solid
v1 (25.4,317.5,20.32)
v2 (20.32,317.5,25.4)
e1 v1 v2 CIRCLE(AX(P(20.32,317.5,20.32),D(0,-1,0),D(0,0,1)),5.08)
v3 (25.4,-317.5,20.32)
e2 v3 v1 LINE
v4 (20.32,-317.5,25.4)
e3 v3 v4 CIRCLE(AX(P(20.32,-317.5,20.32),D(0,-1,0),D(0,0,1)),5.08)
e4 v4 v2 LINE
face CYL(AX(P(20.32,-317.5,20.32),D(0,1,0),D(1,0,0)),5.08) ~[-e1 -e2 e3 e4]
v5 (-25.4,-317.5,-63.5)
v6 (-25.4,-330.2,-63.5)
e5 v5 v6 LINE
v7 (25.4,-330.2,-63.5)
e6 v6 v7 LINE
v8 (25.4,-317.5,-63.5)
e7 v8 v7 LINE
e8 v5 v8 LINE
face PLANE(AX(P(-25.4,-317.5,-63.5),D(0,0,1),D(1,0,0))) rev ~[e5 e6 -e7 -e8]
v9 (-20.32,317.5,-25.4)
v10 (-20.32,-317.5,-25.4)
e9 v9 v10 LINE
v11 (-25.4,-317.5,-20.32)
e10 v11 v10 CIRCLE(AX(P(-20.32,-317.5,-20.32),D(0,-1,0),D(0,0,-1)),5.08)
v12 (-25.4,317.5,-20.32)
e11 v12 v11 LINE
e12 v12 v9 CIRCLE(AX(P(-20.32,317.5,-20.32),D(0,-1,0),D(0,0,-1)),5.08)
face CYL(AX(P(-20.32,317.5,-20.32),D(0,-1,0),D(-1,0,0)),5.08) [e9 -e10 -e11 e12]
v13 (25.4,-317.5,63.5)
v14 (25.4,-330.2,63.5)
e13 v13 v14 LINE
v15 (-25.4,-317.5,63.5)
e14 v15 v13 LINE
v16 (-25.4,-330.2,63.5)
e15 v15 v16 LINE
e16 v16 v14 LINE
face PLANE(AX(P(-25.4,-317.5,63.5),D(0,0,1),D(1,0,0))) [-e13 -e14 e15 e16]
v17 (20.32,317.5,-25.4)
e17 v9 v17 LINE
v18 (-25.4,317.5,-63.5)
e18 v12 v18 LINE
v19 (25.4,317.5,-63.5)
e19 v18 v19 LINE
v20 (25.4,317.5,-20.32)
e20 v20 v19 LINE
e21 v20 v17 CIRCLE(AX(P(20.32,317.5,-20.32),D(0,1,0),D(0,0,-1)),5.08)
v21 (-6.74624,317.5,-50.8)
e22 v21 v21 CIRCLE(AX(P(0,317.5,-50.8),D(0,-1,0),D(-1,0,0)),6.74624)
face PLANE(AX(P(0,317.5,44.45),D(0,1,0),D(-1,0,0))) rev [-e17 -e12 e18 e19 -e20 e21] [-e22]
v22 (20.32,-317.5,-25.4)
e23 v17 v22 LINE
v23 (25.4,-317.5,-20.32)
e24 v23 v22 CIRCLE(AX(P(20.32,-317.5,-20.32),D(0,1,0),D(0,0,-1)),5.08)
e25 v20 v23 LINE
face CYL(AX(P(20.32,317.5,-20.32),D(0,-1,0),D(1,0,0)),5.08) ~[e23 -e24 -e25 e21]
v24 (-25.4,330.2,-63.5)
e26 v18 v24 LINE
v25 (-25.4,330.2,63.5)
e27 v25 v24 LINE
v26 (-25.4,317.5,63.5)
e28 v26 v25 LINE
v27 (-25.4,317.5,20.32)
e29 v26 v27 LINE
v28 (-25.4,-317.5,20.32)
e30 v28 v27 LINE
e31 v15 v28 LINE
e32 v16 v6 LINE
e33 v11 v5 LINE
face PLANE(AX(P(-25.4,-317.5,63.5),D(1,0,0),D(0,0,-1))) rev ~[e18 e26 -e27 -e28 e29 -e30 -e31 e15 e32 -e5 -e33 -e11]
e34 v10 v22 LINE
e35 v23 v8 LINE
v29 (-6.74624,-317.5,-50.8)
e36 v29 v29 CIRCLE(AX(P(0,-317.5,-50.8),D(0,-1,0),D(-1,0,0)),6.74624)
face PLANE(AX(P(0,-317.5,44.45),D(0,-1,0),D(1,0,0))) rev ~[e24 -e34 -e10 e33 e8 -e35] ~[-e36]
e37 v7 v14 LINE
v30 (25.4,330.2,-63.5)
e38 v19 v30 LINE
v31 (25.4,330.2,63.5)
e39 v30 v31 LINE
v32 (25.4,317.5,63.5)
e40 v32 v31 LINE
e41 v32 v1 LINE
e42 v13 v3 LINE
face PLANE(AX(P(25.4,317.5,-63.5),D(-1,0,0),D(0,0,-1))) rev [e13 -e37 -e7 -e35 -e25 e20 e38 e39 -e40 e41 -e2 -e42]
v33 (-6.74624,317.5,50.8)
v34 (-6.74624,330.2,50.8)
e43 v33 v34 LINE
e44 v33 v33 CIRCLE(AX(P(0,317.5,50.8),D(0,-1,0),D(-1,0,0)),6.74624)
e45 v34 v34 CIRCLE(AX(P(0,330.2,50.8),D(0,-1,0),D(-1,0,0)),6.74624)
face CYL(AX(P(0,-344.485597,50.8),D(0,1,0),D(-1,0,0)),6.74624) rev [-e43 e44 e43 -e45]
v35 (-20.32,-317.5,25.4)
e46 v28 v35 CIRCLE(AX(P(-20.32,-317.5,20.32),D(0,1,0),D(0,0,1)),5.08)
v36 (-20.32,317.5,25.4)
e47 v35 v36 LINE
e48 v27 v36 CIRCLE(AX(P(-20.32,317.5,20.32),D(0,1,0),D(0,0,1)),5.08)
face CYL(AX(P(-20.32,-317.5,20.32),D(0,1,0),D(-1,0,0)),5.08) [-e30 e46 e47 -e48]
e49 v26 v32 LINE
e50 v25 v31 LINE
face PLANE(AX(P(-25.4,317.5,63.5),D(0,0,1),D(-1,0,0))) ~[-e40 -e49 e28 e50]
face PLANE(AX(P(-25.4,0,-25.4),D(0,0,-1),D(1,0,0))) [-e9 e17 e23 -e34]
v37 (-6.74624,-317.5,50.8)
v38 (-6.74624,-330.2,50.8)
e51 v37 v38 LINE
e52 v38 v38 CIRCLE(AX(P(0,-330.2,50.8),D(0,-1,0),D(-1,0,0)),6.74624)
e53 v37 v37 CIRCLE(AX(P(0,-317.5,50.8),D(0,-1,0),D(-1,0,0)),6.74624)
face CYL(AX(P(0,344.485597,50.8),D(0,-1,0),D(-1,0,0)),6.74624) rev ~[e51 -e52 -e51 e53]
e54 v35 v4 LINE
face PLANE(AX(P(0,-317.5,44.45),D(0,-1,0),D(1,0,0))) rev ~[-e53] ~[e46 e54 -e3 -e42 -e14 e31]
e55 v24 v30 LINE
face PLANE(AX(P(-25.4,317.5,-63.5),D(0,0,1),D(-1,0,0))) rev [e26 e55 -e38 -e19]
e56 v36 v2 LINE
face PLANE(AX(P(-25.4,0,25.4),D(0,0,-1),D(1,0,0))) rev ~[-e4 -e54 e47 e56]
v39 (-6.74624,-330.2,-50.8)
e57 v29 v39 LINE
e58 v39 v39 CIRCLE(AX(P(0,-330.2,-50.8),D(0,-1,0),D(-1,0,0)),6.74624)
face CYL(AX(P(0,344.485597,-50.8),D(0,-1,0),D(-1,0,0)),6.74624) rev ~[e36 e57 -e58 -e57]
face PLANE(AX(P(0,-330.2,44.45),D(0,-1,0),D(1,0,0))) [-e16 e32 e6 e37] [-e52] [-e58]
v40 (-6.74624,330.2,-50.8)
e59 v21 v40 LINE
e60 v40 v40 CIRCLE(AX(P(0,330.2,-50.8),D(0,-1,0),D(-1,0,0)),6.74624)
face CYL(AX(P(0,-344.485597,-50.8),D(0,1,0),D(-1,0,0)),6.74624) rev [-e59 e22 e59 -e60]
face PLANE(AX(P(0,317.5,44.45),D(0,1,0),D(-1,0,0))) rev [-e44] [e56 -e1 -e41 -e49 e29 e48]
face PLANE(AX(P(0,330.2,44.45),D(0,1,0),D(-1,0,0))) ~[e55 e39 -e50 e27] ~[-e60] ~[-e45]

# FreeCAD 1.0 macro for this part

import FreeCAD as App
import Part
import Sketcher
from FreeCAD import Vector
Q = App.Units.Quantity


def edges_at(feature, points):
    """Names of the edges that pass closest to the given points."""
    edges = feature.Shape.Edges
    near = lambda p: min(range(len(edges)), key=lambda i: edges[i].distToShape(Part.Vertex(*p))[0])
    return sorted({f"Edge{near(p) + 1}" for p in points})


def add_polygon(sketch, points):
    """Adds a closed chain of lines whose ends are joined by coincident constraints."""
    first, n = sketch.GeometryCount, len(points)
    for a, b in zip(points, points[1:] + points[:1]):
        sketch.addGeometry(Part.LineSegment(App.Vector(*a, 0), App.Vector(*b, 0)), False)
    for i in range(n):
        sketch.addConstraint(Sketcher.Constraint("Coincident", first + i, 2, first + (i + 1) % n, 1))

doc = App.newDocument("Part")
body = doc.addObject("PartDesign::Body", "Body")

# Sketch on XZ plane
sketch1 = body.newObject("Sketcher::SketchObject", "Sketch")
sketch1.AttachmentSupport = (doc.getObject("XZ_Plane"), [""])
sketch1.MapMode = "FlatFace"
add_polygon(sketch1, [(-25, 25), (-25, -25), (25, -25), (25, 25)])  # lines 0-3
sketch1.addConstraint([
    Sketcher.Constraint("Vertical", 0),
    Sketcher.Constraint("Horizontal", 1),
    Sketcher.Constraint("Vertical", 2),
    Sketcher.Constraint("Horizontal", 3),
    Sketcher.Constraint("Symmetric", 0, 2, 2, 2, -1, 1),
    Sketcher.Constraint("Equal", 3, 0),
    Sketcher.Constraint("DistanceX", 1, 1, 1, 2, Q("2 in")),
])
pad1 = body.newObject("PartDesign::Pad", "Pad")
pad1.Profile = sketch1
pad1.Length = Q("25 in")
pad1.Midplane = True

# Sketch on XZ plane
sketch2 = body.newObject("Sketcher::SketchObject", "Sketch001")
sketch2.AttachmentSupport = (doc.getObject("XZ_Plane"), [""])
sketch2.MapMode = "FlatFace"
sketch2.AttachmentOffset = App.Placement(Vector(0, 0, 12.5 * 25.4), App.Rotation())
add_polygon(sketch2, [(-25, 64), (-25, -64), (25, -64), (25, 64)])  # lines 0-3
sketch2.addConstraint([
    Sketcher.Constraint("Vertical", 0),
    Sketcher.Constraint("Horizontal", 1),
    Sketcher.Constraint("Vertical", 2),
    Sketcher.Constraint("Horizontal", 3),
    Sketcher.Constraint("Symmetric", 0, 2, 2, 2, -1, 1),
    Sketcher.Constraint("DistanceX", 1, 1, 1, 2, Q("2 in")),
    Sketcher.Constraint("DistanceY", 0, 2, 0, 1, Q("5 in")),
])
pad2 = body.newObject("PartDesign::Pad", "Pad001")
pad2.Profile = sketch2
pad2.Length = Q("0.5 in")
doc.recompute()

fillet = body.newObject("PartDesign::Fillet", "Fillet")
fillet.Base = (pad2, edges_at(pad2, [
    (25.4, 0, 25.4),
    (-25.4, 0, 25.4),
    (-25.4, 0, -25.4),
    (25.4, 0, -25.4),
]))
fillet.Radius = Q("0.2 in")

# Sketch on XZ plane
sketch3 = body.newObject("Sketcher::SketchObject", "Sketch002")
sketch3.AttachmentSupport = (doc.getObject("XZ_Plane"), [""])
sketch3.MapMode = "FlatFace"
sketch3.AttachmentOffset = App.Placement(Vector(0, 0, 12.5 * 25.4), App.Rotation())
sketch3.addGeometry([
    Part.Circle(Vector(0, 51, 0), Vector(0, 0, 1), 7),
    Part.Circle(Vector(0, -51, 0), Vector(0, 0, 1), 7),
], False)
sketch3.addConstraint([
    Sketcher.Constraint("Equal", 0, 1),
    Sketcher.Constraint("Symmetric", 0, 3, 1, 3, -1, 1),
    Sketcher.Constraint("PointOnObject", 0, 3, -2),
    Sketcher.Constraint("DistanceY", -1, 1, 0, 3, Q("2 in")),
    Sketcher.Constraint("Diameter", 0, Q("0.5312 in")),
])
doc.recompute()
hole = body.newObject("PartDesign::Hole", "Hole")
hole.Profile = sketch3
hole.ThreadType = "None"
hole.Diameter = Q("0.5312 in")
hole.DepthType = "ThroughAll"
hole.Reversed = True
body2 = doc.addObject("PartDesign::Body", "Body001")
doc.recompute()

body2.BaseFeature = body
doc.recompute()

mirroring = doc.addObject("Part::Mirroring", "Mirroring")
mirroring.Source = body
mirroring.Base = Vector(0, 0, 0)
mirroring.Normal = Vector(0, -1, 0)
body3 = doc.addObject("PartDesign::Body", "Body002")
body3.BaseFeature = mirroring
boolean = body2.newObject("PartDesign::Boolean", "Boolean")
boolean.Type = "Fuse"
boolean.addObjects([body3])
doc.recompute()
mirroring.Visibility = False

doc.recompute()
